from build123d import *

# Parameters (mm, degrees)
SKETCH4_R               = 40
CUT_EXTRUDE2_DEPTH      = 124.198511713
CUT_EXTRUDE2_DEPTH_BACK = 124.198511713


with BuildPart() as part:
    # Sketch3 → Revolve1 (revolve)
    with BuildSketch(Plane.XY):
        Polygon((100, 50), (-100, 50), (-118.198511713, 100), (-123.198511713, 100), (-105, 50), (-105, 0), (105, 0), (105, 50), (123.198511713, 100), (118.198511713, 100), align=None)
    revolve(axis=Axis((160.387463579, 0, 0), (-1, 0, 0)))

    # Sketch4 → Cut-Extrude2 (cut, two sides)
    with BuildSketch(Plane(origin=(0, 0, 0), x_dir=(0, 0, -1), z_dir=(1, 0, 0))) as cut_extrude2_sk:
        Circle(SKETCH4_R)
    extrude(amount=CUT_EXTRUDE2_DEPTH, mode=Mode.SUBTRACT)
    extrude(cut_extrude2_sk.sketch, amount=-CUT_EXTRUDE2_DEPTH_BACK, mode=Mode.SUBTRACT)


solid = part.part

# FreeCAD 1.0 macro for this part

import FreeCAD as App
import Part
import Sketcher
Q = App.Units.Quantity


def add_polygon(sketch, points):
    """Adds a closed chain of lines whose ends are joined by coincident constraints."""
    first, n = sketch.GeometryCount, len(points)
    for a, b in zip(points, points[1:] + points[:1]):
        sketch.addGeometry(Part.LineSegment(App.Vector(*a, 0), App.Vector(*b, 0)), False)
    for i in range(n):
        sketch.addConstraint(Sketcher.Constraint("Coincident", first + i, 2, first + (i + 1) % n, 1))

doc = App.newDocument("Part")
body = doc.addObject("PartDesign::Body", "Body")

sketch1 = doc.addObject("Sketcher::SketchObject", "Sketch")
body.addObject(sketch1)
sketch1.AttachmentSupport = (doc.XY_Plane, [""])
sketch1.MapMode = "FlatFace"
add_polygon(sketch1, [(100, 50), (-100, 50), (-118, 100), (-123, 100), (-105, 50), (-105, 0), (105, 0), (105, 50), (123, 100), (118, 100)])
sketch1.addConstraint([
    Sketcher.Constraint("Horizontal", 0),
    Sketcher.Constraint("Horizontal", 2),
    Sketcher.Constraint("Vertical", 4),
    Sketcher.Constraint("Horizontal", 5),
    Sketcher.Constraint("Vertical", 6),
    Sketcher.Constraint("Horizontal", 8),
    Sketcher.Constraint("Symmetric", 4, 2, 5, 2, -1, 1),
    Sketcher.Constraint("Symmetric", 2, 2, 7, 2, -2),
    Sketcher.Constraint("Parallel", 1, 3),
    Sketcher.Constraint("Parallel", 7, 9),
    Sketcher.Constraint("Horizontal", 0, 2, 3, 2),
    Sketcher.Constraint("Horizontal", 3, 2, 6, 2),
    Sketcher.Constraint("Equal", 2, 8),
    Sketcher.Constraint("DistanceX", 0, 2, 0, 1, 200.0),
    Sketcher.Constraint("DistanceX", 2, 2, 2, 1, 5.0),
    Sketcher.Constraint("DistanceY", 4, 2, 4, 1, 50.0),
    Sketcher.Constraint("Angle", 1, Q("110 deg")),
    Sketcher.Constraint("DistanceY", -1, 1, 1, 2, 100.0),
])
revolution = doc.addObject("PartDesign::Revolution", "Revolution")
body.addObject(revolution)
revolution.Profile = sketch1
revolution.ReferenceAxis = (sketch1, ["H_Axis"])
revolution.Angle = 360

sketch2 = doc.addObject("Sketcher::SketchObject", "Sketch001")
body.addObject(sketch2)
sketch2.AttachmentSupport = (doc.YZ_Plane, [""])
sketch2.MapMode = "FlatFace"
sketch2.addGeometry(Part.Circle(App.Vector(0, 0, 0), App.Vector(0, 0, 1), 40), False)
sketch2.addConstraint([
    Sketcher.Constraint("Coincident", 0, 3, -1, 1),
    Sketcher.Constraint("Diameter", 0, 80.0),
])
pocket1 = doc.addObject("PartDesign::Pocket", "Pocket")
body.addObject(pocket1)
pocket1.Profile = sketch2
pocket1.Type = "ThroughAll"
pocket1.Midplane = True

doc.recompute()
